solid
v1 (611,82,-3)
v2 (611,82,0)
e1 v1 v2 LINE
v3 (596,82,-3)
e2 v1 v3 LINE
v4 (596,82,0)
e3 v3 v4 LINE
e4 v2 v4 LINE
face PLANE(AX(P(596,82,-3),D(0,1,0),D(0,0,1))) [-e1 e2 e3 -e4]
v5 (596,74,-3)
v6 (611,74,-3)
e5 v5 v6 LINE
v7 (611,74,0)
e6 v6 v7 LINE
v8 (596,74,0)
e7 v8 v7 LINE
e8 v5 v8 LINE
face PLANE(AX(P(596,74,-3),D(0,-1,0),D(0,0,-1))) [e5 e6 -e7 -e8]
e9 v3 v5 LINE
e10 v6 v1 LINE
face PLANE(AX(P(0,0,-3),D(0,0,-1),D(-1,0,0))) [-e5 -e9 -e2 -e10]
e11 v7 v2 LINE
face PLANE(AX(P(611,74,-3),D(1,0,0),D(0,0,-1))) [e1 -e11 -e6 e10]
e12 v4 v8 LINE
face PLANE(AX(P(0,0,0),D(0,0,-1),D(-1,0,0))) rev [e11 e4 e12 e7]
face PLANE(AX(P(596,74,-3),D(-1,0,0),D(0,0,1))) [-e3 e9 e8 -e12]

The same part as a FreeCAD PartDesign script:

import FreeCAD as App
import Part
import Sketcher
from FreeCAD import Vector

doc = App.newDocument("Part")
body = doc.addObject("PartDesign::Body", "Body")

# Sketch on XY plane
sketch1 = body.newObject("Sketcher::SketchObject", "Sketch")
sketch1.AttachmentSupport = (doc.getObject("XY_Plane"), [""])
sketch1.MapMode = "FlatFace"
sketch1.addGeometry([
    Part.LineSegment(Vector(596, 82, 0), Vector(596, 74, 0)),
    Part.LineSegment(Vector(596, 74, 0), Vector(611, 74, 0)),
    Part.LineSegment(Vector(611, 74, 0), Vector(611, 82, 0)),
    Part.LineSegment(Vector(611, 82, 0), Vector(596, 82, 0)),
], False)
sketch1.addConstraint([
    Sketcher.Constraint("Coincident", 0, 2, 1, 1),
    Sketcher.Constraint("Coincident", 1, 2, 2, 1),
    Sketcher.Constraint("Coincident", 2, 2, 3, 1),
    Sketcher.Constraint("Coincident", 3, 2, 0, 1),
    Sketcher.Constraint("Vertical", 0),
    Sketcher.Constraint("Horizontal", 1),
    Sketcher.Constraint("Vertical", 2),
    Sketcher.Constraint("Horizontal", 3),
    Sketcher.Constraint("DistanceX", 1, 1, 1, 2, 15.0),
    Sketcher.Constraint("DistanceY", 0, 2, 0, 1, 8.0),
    Sketcher.Constraint("DistanceX", -1, 1, 0, 2, 596.0),
    Sketcher.Constraint("DistanceY", -1, 1, 0, 2, 74.0),
])
pad1 = body.newObject("PartDesign::Pad", "Pad")
pad1.Profile = sketch1
pad1.Length = 3
pad1.Reversed = True

doc.recompute()
